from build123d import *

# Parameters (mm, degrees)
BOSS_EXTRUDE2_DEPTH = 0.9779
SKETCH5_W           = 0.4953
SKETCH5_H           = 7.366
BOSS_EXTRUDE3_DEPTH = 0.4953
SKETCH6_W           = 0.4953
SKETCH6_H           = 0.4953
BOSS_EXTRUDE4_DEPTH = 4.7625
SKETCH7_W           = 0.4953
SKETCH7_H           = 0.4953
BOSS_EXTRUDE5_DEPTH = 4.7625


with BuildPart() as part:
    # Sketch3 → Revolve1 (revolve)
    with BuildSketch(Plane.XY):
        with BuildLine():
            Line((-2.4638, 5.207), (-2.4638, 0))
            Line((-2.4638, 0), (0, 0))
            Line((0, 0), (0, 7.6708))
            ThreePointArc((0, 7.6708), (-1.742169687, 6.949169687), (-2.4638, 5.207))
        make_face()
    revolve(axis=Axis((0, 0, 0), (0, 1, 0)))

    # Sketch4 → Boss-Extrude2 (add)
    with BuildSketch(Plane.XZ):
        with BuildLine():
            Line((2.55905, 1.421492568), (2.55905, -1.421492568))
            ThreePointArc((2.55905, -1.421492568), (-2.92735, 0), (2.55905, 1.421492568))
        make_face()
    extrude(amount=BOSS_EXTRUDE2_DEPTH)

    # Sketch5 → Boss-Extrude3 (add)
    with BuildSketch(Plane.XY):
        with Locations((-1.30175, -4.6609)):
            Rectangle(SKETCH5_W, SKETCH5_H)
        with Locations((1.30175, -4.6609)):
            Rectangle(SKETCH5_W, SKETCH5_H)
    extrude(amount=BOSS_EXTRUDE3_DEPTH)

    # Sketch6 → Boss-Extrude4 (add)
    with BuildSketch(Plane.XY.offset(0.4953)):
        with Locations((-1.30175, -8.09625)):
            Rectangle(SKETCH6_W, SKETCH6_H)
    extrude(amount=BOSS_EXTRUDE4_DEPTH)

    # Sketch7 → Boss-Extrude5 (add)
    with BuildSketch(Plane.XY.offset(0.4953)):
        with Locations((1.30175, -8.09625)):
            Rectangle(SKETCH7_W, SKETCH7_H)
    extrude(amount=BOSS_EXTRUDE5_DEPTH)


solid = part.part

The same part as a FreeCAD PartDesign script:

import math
import FreeCAD as App
import Part
import Sketcher
Q = App.Units.Quantity


def add_polygon(sketch, points):
    """Adds a closed chain of lines whose ends are joined by coincident constraints."""
    first, n = sketch.GeometryCount, len(points)
    for a, b in zip(points, points[1:] + points[:1]):
        sketch.addGeometry(Part.LineSegment(App.Vector(*a, 0), App.Vector(*b, 0)), False)
    for i in range(n):
        sketch.addConstraint(Sketcher.Constraint("Coincident", first + i, 2, first + (i + 1) % n, 1))

doc = App.newDocument("Part")
body = doc.addObject("PartDesign::Body", "Body")

sketch1 = body.newObject("Sketcher::SketchObject", "Sketch")
sketch1.AttachmentSupport = (doc.getObject("XY_Plane"), [""])
sketch1.MapMode = "FlatFace"
sketch1.addGeometry([
    Part.LineSegment(App.Vector(-2.4638, 5.207, 0), App.Vector(-2.4638, 0, 0)),
    Part.LineSegment(App.Vector(-2.4638, 0, 0), App.Vector(0, 0, 0)),
    Part.LineSegment(App.Vector(0, 0, 0), App.Vector(0, 7.6708, 0)),
    Part.ArcOfCircle(Part.Circle(App.Vector(0, 5.207, 0), App.Vector(0, 0, 1), 2.4638), math.radians(90), math.radians(180)),
], False)
sketch1.addConstraint([
    Sketcher.Constraint("Coincident", 0, 2, 1, 1),
    Sketcher.Constraint("Coincident", 1, 2, 2, 1),
    Sketcher.Constraint("Coincident", 2, 2, 3, 1),
    Sketcher.Constraint("Tangent", 3, 2, 0, 1),
    Sketcher.Constraint("Vertical", 0),
    Sketcher.Constraint("Horizontal", 1),
    Sketcher.Constraint("Vertical", 2),
    Sketcher.Constraint("Coincident", 1, 2, -1, 1),
    Sketcher.Constraint("PointOnObject", 3, 3, -2),
    Sketcher.Constraint("Radius", 3, Q("0.097 in")),
    Sketcher.Constraint("DistanceY", 0, 2, 0, 1, Q("0.205 in")),
])
revolution = body.newObject("PartDesign::Revolution", "Revolution")
revolution.Profile = sketch1
revolution.ReferenceAxis = (sketch1, ["V_Axis"])
revolution.Angle = 360

sketch2 = body.newObject("Sketcher::SketchObject", "Sketch001")
sketch2.AttachmentSupport = (doc.getObject("XZ_Plane"), [""])
sketch2.MapMode = "FlatFace"
sketch2.addGeometry([
    Part.LineSegment(App.Vector(2.55905, -1.421493, 0), App.Vector(2.55905, 1.421493, 0)),
    Part.ArcOfCircle(Part.Circle(App.Vector(0, 0, 0), App.Vector(0, 0, 1), 2.92735), math.radians(29.05115), math.radians(330.94885)),
], False)
sketch2.addConstraint([
    Sketcher.Constraint("Coincident", 0, 1, 1, 2),
    Sketcher.Constraint("Coincident", 1, 1, 0, 2),
    Sketcher.Constraint("Vertical", 0),
    Sketcher.Constraint("Coincident", 1, 3, -1, 1),
    Sketcher.Constraint("Radius", 1, 2.92735),
    Sketcher.Constraint("DistanceY", 0, 1, 0, 2, 2.842985),
])
pad1 = body.newObject("PartDesign::Pad", "Pad")
pad1.Profile = sketch2
pad1.Length = Q("0.0385 in")

sketch3 = body.newObject("Sketcher::SketchObject", "Sketch002")
sketch3.AttachmentSupport = (doc.getObject("XY_Plane"), [""])
sketch3.MapMode = "FlatFace"
add_polygon(sketch3, [(-1.5494, -0.9779), (-1.5494, -8.3439), (-1.0541, -8.3439), (-1.0541, -0.9779)])
add_polygon(sketch3, [(1.0541, -0.9779), (1.0541, -8.3439), (1.5494, -8.3439), (1.5494, -0.9779)])
sketch3.addConstraint([
    Sketcher.Constraint("Vertical", 0),
    Sketcher.Constraint("Horizontal", 1),
    Sketcher.Constraint("Vertical", 2),
    Sketcher.Constraint("Horizontal", 3),
    Sketcher.Constraint("Vertical", 4),
    Sketcher.Constraint("Horizontal", 5),
    Sketcher.Constraint("Vertical", 6),
    Sketcher.Constraint("Horizontal", 7),
    Sketcher.Constraint("Symmetric", 1, 2, 4, 2, -2),
    Sketcher.Constraint("Symmetric", 3, 2, 6, 2, -2),
    Sketcher.Constraint("DistanceY", 0, 2, 0, 1, Q("0.29 in")),
    Sketcher.Constraint("DistanceX", 1, 1, 1, 2, Q("0.0195 in")),
    Sketcher.Constraint("DistanceX", 0, 2, -1, 1, Q("0.061 in")),
    Sketcher.Constraint("DistanceY", 0, 2, -1, 1, Q("0.3285 in")),
])
pad2 = body.newObject("PartDesign::Pad", "Pad001")
pad2.Profile = sketch3
pad2.Length = Q("0.0195 in")

sketch4 = body.newObject("Sketcher::SketchObject", "Sketch003")
sketch4.AttachmentSupport = (doc.getObject("XY_Plane"), [""])
sketch4.MapMode = "FlatFace"
sketch4.AttachmentOffset = App.Placement(App.Vector(0, 0, 0.0195 * 25.4), App.Rotation())
add_polygon(sketch4, [(-1.5494, -7.8486), (-1.5494, -8.3439), (-1.0541, -8.3439), (-1.0541, -7.8486)])
sketch4.addConstraint([
    Sketcher.Constraint("Vertical", 0),
    Sketcher.Constraint("Horizontal", 1),
    Sketcher.Constraint("Vertical", 2),
    Sketcher.Constraint("Horizontal", 3),
    Sketcher.Constraint("Equal", 3, 0),
    Sketcher.Constraint("DistanceX", 1, 1, 1, 2, Q("0.0195 in")),
    Sketcher.Constraint("DistanceX", 0, 2, -1, 1, Q("0.061 in")),
    Sketcher.Constraint("DistanceY", 2, 2, -1, 1, Q("0.309 in")),
])
pad3 = body.newObject("PartDesign::Pad", "Pad002")
pad3.Profile = sketch4
pad3.Length = Q("0.1875 in")

sketch5 = body.newObject("Sketcher::SketchObject", "Sketch004")
sketch5.AttachmentSupport = (doc.getObject("XY_Plane"), [""])
sketch5.MapMode = "FlatFace"
sketch5.AttachmentOffset = App.Placement(App.Vector(0, 0, 0.0195 * 25.4), App.Rotation())
add_polygon(sketch5, [(1.0541, -7.8486), (1.0541, -8.3439), (1.5494, -8.3439), (1.5494, -7.8486)])
sketch5.addConstraint([
    Sketcher.Constraint("Vertical", 0),
    Sketcher.Constraint("Horizontal", 1),
    Sketcher.Constraint("Vertical", 2),
    Sketcher.Constraint("Horizontal", 3),
    Sketcher.Constraint("Equal", 3, 0),
    Sketcher.Constraint("DistanceX", 1, 1, 1, 2, Q("0.0195 in")),
    Sketcher.Constraint("DistanceX", -1, 1, 1, 2, Q("0.061 in")),
    Sketcher.Constraint("DistanceY", 2, 2, -1, 1, Q("0.309 in")),
])
pad4 = body.newObject("PartDesign::Pad", "Pad003")
pad4.Profile = sketch5
pad4.Length = Q("0.1875 in")

doc.recompute()
